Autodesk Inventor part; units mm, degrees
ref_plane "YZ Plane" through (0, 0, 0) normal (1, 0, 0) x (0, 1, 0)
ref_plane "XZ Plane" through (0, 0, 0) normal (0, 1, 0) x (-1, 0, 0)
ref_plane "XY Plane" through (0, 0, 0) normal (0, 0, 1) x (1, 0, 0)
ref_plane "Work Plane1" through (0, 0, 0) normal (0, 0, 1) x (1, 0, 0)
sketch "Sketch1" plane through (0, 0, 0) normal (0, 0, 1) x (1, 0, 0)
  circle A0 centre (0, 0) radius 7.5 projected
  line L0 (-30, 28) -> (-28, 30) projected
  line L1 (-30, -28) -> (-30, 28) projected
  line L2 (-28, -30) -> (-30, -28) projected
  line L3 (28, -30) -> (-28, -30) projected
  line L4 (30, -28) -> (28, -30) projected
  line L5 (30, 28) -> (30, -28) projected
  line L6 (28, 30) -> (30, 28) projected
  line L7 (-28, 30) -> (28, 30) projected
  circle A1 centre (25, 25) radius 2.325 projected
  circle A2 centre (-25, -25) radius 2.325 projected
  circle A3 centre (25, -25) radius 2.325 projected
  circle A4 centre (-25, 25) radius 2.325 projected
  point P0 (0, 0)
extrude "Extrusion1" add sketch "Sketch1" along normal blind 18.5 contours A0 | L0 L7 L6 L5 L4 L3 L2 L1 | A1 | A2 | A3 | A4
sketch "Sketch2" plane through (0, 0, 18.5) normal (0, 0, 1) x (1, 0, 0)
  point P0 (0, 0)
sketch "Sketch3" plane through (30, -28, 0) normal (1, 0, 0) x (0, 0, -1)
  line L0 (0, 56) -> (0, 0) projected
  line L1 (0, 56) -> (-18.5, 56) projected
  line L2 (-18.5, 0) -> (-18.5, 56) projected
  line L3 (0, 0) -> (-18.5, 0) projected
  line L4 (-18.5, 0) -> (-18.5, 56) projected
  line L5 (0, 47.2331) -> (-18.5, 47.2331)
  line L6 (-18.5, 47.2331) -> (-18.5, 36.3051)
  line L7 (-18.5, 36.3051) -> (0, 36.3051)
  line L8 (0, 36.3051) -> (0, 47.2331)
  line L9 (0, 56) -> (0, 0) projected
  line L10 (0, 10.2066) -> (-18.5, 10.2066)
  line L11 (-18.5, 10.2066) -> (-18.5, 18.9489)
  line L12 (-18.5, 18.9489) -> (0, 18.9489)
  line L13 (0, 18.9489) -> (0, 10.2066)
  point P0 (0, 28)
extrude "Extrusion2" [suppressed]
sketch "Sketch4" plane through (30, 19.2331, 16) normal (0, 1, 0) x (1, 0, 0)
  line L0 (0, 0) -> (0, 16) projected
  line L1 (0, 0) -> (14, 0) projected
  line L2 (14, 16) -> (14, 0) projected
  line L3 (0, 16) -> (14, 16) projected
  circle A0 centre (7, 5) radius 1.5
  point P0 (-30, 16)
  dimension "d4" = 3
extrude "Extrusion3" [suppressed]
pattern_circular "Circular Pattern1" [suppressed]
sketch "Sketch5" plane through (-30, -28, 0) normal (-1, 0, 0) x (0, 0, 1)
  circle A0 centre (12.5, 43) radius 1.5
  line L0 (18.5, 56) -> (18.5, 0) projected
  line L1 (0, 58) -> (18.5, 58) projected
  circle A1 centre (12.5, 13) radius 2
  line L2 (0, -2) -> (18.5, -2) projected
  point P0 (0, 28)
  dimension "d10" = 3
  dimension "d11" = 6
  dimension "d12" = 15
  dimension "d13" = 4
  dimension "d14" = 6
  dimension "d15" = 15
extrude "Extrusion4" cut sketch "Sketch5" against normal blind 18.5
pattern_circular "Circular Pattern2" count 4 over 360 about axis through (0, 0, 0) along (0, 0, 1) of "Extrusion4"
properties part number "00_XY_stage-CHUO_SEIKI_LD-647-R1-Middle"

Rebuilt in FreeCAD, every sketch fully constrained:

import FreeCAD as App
import Part
import Sketcher
from FreeCAD import Vector

doc = App.newDocument("Part")
body = doc.addObject("PartDesign::Body", "Body")

# Sketch on XY plane
sketch1 = body.newObject("Sketcher::SketchObject", "Sketch")
sketch1.AttachmentSupport = (doc.getObject("XY_Plane"), [""])
sketch1.MapMode = "FlatFace"
sketch1.addGeometry([
    Part.LineSegment(Vector(-28, 30, 0), Vector(-30, 28, 0)),  # 0
    Part.LineSegment(Vector(-30, 28, 0), Vector(-30, -28, 0)),  # 1
    Part.LineSegment(Vector(-30, -28, 0), Vector(-28, -30, 0)),  # 2
    Part.LineSegment(Vector(-28, -30, 0), Vector(28, -30, 0)),  # 3
    Part.LineSegment(Vector(28, -30, 0), Vector(30, -28, 0)),  # 4
    Part.LineSegment(Vector(30, -28, 0), Vector(30, 28, 0)),  # 5
    Part.LineSegment(Vector(30, 28, 0), Vector(28, 30, 0)),  # 6
    Part.LineSegment(Vector(28, 30, 0), Vector(-28, 30, 0)),  # 7
], False)
sketch1.addConstraint([
    Sketcher.Constraint("Coincident", 0, 2, 1, 1),
    Sketcher.Constraint("Coincident", 1, 2, 2, 1),
    Sketcher.Constraint("Coincident", 2, 2, 3, 1),
    Sketcher.Constraint("Coincident", 3, 2, 4, 1),
    Sketcher.Constraint("Coincident", 4, 2, 5, 1),
    Sketcher.Constraint("Coincident", 5, 2, 6, 1),
    Sketcher.Constraint("Coincident", 6, 2, 7, 1),
    Sketcher.Constraint("Coincident", 7, 2, 0, 1),
    Sketcher.Constraint("Vertical", 1),
    Sketcher.Constraint("Horizontal", 3),
    Sketcher.Constraint("Vertical", 5),
    Sketcher.Constraint("Horizontal", 7),
    Sketcher.Constraint("Symmetric", 0, 2, 4, 2, -1, 1),
    Sketcher.Constraint("Symmetric", 2, 2, 6, 2, -1, 1),
    Sketcher.Constraint("Perpendicular", 0, 2),
    Sketcher.Constraint("Perpendicular", 2, 4),
    Sketcher.Constraint("Perpendicular", 4, 6),
    Sketcher.Constraint("Horizontal", 1, 2, 4, 2),
    Sketcher.Constraint("Vertical", 3, 2, 6, 2),
    Sketcher.Constraint("Equal", 7, 1),
    Sketcher.Constraint("DistanceX", 3, 1, 3, 2, 56.0),
    Sketcher.Constraint("DistanceX", 0, 2, -1, 1, 30.0),
])
pad1 = body.newObject("PartDesign::Pad", "Pad")
pad1.Profile = sketch1
pad1.Length = 18.5

# Sketch on YZ plane
sketch2 = body.newObject("Sketcher::SketchObject", "Sketch001")
sketch2.AttachmentSupport = (doc.getObject("YZ_Plane"), [""])
sketch2.MapMode = "FlatFace"
sketch2.AttachmentOffset = App.Placement(Vector(0, 0, -30), App.Rotation())
sketch2.addGeometry([
    Part.Circle(Vector(15, 12.5, 0), Vector(0, 0, 1), 1.5),
    Part.Circle(Vector(-15, 12.5, 0), Vector(0, 0, 1), 2),
], False)
sketch2.addConstraint([
    Sketcher.Constraint("Symmetric", 0, 3, 1, 3, -2),
    Sketcher.Constraint("Diameter", 0, 3.0),
    Sketcher.Constraint("Diameter", 1, 4.0),
    Sketcher.Constraint("DistanceX", -1, 1, 0, 3, 15.0),
    Sketcher.Constraint("DistanceY", -1, 1, 0, 3, 12.5),
])
pocket1 = body.newObject("PartDesign::Pocket", "Pocket")
pocket1.Profile = sketch2
pocket1.Length = 18.5
pocket1.Reversed = True
doc.recompute()

polarpattern = body.newObject("PartDesign::PolarPattern", "PolarPattern")
polarpattern.Originals = [pocket1]
polarpattern.Axis = (doc.getObject("Z_Axis"), [""])
polarpattern.Angle = 360
polarpattern.Occurrences = 4
body.Tip = polarpattern

doc.recompute()
